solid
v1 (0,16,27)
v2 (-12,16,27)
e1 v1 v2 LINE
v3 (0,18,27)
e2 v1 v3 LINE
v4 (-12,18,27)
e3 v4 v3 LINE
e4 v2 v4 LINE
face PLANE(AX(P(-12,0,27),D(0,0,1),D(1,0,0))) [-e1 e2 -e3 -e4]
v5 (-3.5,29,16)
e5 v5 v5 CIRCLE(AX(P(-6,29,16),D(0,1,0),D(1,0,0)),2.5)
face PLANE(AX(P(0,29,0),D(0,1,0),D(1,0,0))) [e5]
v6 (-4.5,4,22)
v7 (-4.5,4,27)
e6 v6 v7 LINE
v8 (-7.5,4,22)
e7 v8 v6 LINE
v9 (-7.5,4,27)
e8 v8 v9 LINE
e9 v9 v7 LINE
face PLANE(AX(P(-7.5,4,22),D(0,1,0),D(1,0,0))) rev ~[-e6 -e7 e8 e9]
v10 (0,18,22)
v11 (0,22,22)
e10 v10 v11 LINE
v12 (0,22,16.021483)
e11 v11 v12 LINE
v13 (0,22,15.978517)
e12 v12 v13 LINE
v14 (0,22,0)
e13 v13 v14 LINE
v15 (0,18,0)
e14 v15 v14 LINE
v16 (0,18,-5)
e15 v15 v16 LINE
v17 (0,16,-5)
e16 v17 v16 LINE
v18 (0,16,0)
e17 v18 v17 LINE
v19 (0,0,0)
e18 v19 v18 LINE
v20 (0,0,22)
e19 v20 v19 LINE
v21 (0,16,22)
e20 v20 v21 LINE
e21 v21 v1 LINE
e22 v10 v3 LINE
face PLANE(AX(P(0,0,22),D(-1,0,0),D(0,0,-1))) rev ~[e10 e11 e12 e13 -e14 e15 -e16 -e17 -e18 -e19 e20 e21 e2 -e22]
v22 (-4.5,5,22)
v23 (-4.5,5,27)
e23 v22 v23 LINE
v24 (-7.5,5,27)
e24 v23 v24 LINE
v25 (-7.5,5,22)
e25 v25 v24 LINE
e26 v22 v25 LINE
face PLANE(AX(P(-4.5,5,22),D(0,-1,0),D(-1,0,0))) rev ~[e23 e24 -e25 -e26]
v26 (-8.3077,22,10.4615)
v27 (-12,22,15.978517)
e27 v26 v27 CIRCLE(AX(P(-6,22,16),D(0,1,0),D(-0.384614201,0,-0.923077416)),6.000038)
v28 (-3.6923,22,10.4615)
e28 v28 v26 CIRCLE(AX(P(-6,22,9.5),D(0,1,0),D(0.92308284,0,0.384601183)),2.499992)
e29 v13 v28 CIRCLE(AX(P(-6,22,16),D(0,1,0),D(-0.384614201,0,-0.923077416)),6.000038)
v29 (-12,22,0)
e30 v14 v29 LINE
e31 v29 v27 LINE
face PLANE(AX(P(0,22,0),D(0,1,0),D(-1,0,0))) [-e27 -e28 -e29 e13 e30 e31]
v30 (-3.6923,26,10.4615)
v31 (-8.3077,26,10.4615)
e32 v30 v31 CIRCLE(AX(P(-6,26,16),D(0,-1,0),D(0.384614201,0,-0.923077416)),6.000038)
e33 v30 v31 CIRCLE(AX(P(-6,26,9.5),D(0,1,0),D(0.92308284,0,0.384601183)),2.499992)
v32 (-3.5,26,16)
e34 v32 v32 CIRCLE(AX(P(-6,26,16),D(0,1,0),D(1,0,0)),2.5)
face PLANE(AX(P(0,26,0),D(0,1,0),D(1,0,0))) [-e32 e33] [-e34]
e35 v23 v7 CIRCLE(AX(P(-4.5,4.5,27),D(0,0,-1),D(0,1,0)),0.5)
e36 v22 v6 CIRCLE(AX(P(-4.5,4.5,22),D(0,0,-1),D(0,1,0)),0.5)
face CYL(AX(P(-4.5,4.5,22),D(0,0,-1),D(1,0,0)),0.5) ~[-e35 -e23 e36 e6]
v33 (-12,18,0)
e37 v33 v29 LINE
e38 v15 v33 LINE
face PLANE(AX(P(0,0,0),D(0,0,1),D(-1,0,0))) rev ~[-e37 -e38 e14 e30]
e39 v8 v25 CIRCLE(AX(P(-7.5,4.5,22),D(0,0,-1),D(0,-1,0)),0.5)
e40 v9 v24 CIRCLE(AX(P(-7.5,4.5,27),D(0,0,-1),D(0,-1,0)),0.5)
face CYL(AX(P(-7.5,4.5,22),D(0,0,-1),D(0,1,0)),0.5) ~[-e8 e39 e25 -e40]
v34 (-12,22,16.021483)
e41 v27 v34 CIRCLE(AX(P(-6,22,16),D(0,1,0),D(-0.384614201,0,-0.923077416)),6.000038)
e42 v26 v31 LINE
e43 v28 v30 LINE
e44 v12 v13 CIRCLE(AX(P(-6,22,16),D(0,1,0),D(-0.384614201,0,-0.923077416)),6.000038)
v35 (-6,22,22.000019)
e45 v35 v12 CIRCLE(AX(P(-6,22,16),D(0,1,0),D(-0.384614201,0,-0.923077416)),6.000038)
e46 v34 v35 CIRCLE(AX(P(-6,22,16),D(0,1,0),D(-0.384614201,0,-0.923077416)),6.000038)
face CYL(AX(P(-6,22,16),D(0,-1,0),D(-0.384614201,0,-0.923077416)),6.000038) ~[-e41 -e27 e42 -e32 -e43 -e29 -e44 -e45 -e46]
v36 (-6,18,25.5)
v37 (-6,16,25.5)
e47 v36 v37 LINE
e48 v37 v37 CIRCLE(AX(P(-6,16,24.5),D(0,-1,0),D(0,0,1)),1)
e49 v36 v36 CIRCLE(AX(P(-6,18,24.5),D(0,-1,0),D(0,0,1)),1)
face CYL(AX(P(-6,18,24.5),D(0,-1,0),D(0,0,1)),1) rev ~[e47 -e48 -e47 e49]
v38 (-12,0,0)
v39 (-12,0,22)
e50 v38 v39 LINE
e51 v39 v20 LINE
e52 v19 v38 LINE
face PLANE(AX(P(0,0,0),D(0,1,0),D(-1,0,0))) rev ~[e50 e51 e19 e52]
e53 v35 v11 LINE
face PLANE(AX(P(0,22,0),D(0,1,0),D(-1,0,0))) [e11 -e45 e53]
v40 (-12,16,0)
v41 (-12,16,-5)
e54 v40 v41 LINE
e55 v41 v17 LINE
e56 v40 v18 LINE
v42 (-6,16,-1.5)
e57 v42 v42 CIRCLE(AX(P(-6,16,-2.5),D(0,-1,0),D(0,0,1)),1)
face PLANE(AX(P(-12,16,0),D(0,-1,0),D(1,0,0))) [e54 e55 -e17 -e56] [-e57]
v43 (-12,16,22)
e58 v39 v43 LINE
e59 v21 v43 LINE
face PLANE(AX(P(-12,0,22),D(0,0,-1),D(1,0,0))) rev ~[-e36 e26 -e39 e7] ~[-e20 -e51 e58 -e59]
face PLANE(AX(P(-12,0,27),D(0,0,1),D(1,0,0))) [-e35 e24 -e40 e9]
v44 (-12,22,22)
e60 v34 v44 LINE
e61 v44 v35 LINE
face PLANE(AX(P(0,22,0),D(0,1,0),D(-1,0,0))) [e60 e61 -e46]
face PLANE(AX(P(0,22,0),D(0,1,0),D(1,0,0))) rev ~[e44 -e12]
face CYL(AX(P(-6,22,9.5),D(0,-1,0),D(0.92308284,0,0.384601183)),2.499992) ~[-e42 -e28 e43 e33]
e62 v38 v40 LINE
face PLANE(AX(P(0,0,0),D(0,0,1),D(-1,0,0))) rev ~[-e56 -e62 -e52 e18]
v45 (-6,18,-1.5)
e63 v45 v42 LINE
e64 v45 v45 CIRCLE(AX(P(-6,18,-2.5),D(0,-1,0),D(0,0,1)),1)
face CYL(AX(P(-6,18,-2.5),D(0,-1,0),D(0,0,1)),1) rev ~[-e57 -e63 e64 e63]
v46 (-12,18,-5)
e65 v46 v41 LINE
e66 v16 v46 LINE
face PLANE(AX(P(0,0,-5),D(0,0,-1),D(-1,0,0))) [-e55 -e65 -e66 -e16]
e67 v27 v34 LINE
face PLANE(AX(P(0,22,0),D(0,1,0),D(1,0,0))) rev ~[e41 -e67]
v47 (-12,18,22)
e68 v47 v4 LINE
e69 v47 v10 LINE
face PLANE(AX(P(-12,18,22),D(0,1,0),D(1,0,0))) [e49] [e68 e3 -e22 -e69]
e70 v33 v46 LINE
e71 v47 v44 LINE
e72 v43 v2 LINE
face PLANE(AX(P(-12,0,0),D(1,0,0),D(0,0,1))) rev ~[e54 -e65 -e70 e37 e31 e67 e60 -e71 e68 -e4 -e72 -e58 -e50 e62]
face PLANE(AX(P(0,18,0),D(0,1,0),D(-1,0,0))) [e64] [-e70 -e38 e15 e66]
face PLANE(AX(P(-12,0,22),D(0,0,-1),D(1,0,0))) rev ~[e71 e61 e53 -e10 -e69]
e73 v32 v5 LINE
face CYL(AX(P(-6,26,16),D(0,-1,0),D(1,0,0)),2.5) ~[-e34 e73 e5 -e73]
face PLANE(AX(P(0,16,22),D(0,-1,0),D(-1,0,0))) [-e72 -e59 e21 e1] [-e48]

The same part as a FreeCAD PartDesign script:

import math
import FreeCAD as App
import Part
import Sketcher


def add_polygon(sketch, points):
    """Adds a closed chain of lines whose ends are joined by coincident constraints."""
    first, n = sketch.GeometryCount, len(points)
    for a, b in zip(points, points[1:] + points[:1]):
        sketch.addGeometry(Part.LineSegment(App.Vector(*a, 0), App.Vector(*b, 0)), False)
    for i in range(n):
        sketch.addConstraint(Sketcher.Constraint("Coincident", first + i, 2, first + (i + 1) % n, 1))

doc = App.newDocument("Part")
body = doc.addObject("PartDesign::Body", "Body")

sketch1 = doc.addObject("Sketcher::SketchObject", "Sketch")
body.addObject(sketch1)
sketch1.AttachmentSupport = (doc.XZ_Plane, [""])
sketch1.MapMode = "FlatFace"
add_polygon(sketch1, [(0, 22), (0, 0), (-12, 0), (-12, 22)])
sketch1.addConstraint(Sketcher.Constraint("Vertical", 0))
sketch1.addConstraint(Sketcher.Constraint("Horizontal", 1))
sketch1.addConstraint(Sketcher.Constraint("Vertical", 2))
sketch1.addConstraint(Sketcher.Constraint("Horizontal", 3))
sketch1.addConstraint(Sketcher.Constraint("Coincident", 0, 2, -1, 1))
sketch1.addConstraint(Sketcher.Constraint("DistanceX", 1, 2, 1, 1, 12.0))
sketch1.addConstraint(Sketcher.Constraint("DistanceY", 0, 2, 0, 1, 22.0))
pad1 = doc.addObject("PartDesign::Pad", "Pad")
body.addObject(pad1)
pad1.Profile = sketch1
pad1.Length = 22
pad1.Reversed = True

sketch2 = doc.addObject("Sketcher::SketchObject", "Sketch001")
body.addObject(sketch2)
sketch2.AttachmentSupport = (doc.XY_Plane, [""])
sketch2.MapMode = "FlatFace"
sketch2.AttachmentOffset = App.Placement(App.Vector(0, 0, 22), App.Rotation())
add_polygon(sketch2, [(-12, 18), (-12, 16), (0, 16), (0, 18)])
sketch2.addConstraint(Sketcher.Constraint("Vertical", 0))
sketch2.addConstraint(Sketcher.Constraint("Horizontal", 1))
sketch2.addConstraint(Sketcher.Constraint("Vertical", 2))
sketch2.addConstraint(Sketcher.Constraint("Horizontal", 3))
sketch2.addConstraint(Sketcher.Constraint("PointOnObject", 1, 2, -2))
sketch2.addConstraint(Sketcher.Constraint("DistanceY", 0, 2, 0, 1, 2.0))
sketch2.addConstraint(Sketcher.Constraint("DistanceX", 1, 1, 1, 2, 12.0))
sketch2.addConstraint(Sketcher.Constraint("DistanceY", -1, 1, 0, 2, 16.0))
pad2 = doc.addObject("PartDesign::Pad", "Pad001")
body.addObject(pad2)
pad2.Profile = sketch2
pad2.Length = 5

sketch3 = doc.addObject("Sketcher::SketchObject", "Sketch002")
body.addObject(sketch3)
sketch3.AttachmentSupport = (doc.XY_Plane, [""])
sketch3.MapMode = "FlatFace"
add_polygon(sketch3, [(0, 18), (0, 16), (-12, 16), (-12, 18)])
sketch3.addConstraint(Sketcher.Constraint("Vertical", 0))
sketch3.addConstraint(Sketcher.Constraint("Horizontal", 1))
sketch3.addConstraint(Sketcher.Constraint("Vertical", 2))
sketch3.addConstraint(Sketcher.Constraint("Horizontal", 3))
sketch3.addConstraint(Sketcher.Constraint("PointOnObject", 0, 2, -2))
sketch3.addConstraint(Sketcher.Constraint("DistanceX", 1, 2, 1, 1, 12.0))
sketch3.addConstraint(Sketcher.Constraint("DistanceY", 0, 2, 0, 1, 2.0))
sketch3.addConstraint(Sketcher.Constraint("DistanceY", -1, 1, 0, 2, 16.0))
pad3 = doc.addObject("PartDesign::Pad", "Pad002")
body.addObject(pad3)
pad3.Profile = sketch3
pad3.Length = 5
pad3.Reversed = True

sketch4 = doc.addObject("Sketcher::SketchObject", "Sketch003")
body.addObject(sketch4)
sketch4.AttachmentSupport = (doc.XZ_Plane, [""])
sketch4.MapMode = "FlatFace"
sketch4.AttachmentOffset = App.Placement(App.Vector(0, 0, -18), App.Rotation())
sketch4.addGeometry(Part.Circle(App.Vector(-6, -2.5, 0), App.Vector(0, 0, 1), 1), False)
sketch4.addConstraint(Sketcher.Constraint("Diameter", 0, 2.0))
sketch4.addConstraint(Sketcher.Constraint("DistanceX", 0, 3, -1, 1, 6.0))
sketch4.addConstraint(Sketcher.Constraint("DistanceY", 0, 3, -1, 1, 2.5))
doc.recompute()
hole = doc.addObject("PartDesign::Hole", "Hole")
body.addObject(hole)
hole.Profile = sketch4
hole.ThreadType = "None"
hole.Diameter = 2
hole.DepthType = "ThroughAll"
hole.Reversed = True

sketch5 = doc.addObject("Sketcher::SketchObject", "Sketch004")
body.addObject(sketch5)
sketch5.AttachmentSupport = (doc.XZ_Plane, [""])
sketch5.MapMode = "FlatFace"
sketch5.AttachmentOffset = App.Placement(App.Vector(0, 0, -18), App.Rotation())
sketch5.addGeometry(Part.Circle(App.Vector(-6, 24.5, 0), App.Vector(0, 0, 1), 1), False)
sketch5.addConstraint(Sketcher.Constraint("Diameter", 0, 2.0))
sketch5.addConstraint(Sketcher.Constraint("DistanceX", 0, 3, -1, 1, 6.0))
sketch5.addConstraint(Sketcher.Constraint("DistanceY", -1, 1, 0, 3, 24.5))
doc.recompute()
hole2 = doc.addObject("PartDesign::Hole", "Hole001")
body.addObject(hole2)
hole2.Profile = sketch5
hole2.ThreadType = "None"
hole2.Diameter = 2
hole2.DepthType = "ThroughAll"
hole2.Reversed = True

sketch6 = doc.addObject("Sketcher::SketchObject", "Sketch005")
body.addObject(sketch6)
sketch6.AttachmentSupport = (doc.XZ_Plane, [""])
sketch6.MapMode = "FlatFace"
sketch6.AttachmentOffset = App.Placement(App.Vector(0, 0, -22), App.Rotation())
sketch6.addGeometry(Part.ArcOfCircle(Part.Circle(App.Vector(-6, 9.5, 0), App.Vector(0, 0, 1), 2.5), math.radians(157), math.radians(383)), False)
sketch6.addGeometry(Part.ArcOfCircle(Part.Circle(App.Vector(-6, 16, 0), App.Vector(0, 0, 1), 6), math.radians(-67), math.radians(247)), False)
sketch6.addConstraint(Sketcher.Constraint("Coincident", 0, 1, 1, 2))
sketch6.addConstraint(Sketcher.Constraint("Coincident", 1, 1, 0, 2))
sketch6.addConstraint(Sketcher.Constraint("Horizontal", 0, 1, 1, 1))
sketch6.addConstraint(Sketcher.Constraint("Radius", 1, 6.0))
sketch6.addConstraint(Sketcher.Constraint("Radius", 0, 2.5))
sketch6.addConstraint(Sketcher.Constraint("DistanceX", 0, 3, -1, 1, 6.0))
sketch6.addConstraint(Sketcher.Constraint("DistanceY", -1, 1, 0, 3, 9.5))
sketch6.addConstraint(Sketcher.Constraint("DistanceY", -1, 1, 1, 3, 16.0))
pad4 = doc.addObject("PartDesign::Pad", "Pad003")
body.addObject(pad4)
pad4.Profile = sketch6
pad4.Length = 4
pad4.Reversed = True

sketch7 = doc.addObject("Sketcher::SketchObject", "Sketch006")
body.addObject(sketch7)
sketch7.AttachmentSupport = (doc.XZ_Plane, [""])
sketch7.MapMode = "FlatFace"
sketch7.AttachmentOffset = App.Placement(App.Vector(0, 0, -26), App.Rotation())
sketch7.addGeometry(Part.Circle(App.Vector(-6, 16, 0), App.Vector(0, 0, 1), 2.5), False)
sketch7.addConstraint(Sketcher.Constraint("Diameter", 0, 5.0))
sketch7.addConstraint(Sketcher.Constraint("DistanceX", 0, 3, -1, 1, 6.0))
sketch7.addConstraint(Sketcher.Constraint("DistanceY", -1, 1, 0, 3, 16.0))
pad5 = doc.addObject("PartDesign::Pad", "Pad004")
body.addObject(pad5)
pad5.Profile = sketch7
pad5.Length = 3
pad5.Reversed = True

sketch8 = doc.addObject("Sketcher::SketchObject", "Sketch007")
body.addObject(sketch8)
sketch8.AttachmentSupport = (doc.XY_Plane, [""])
sketch8.MapMode = "FlatFace"
sketch8.AttachmentOffset = App.Placement(App.Vector(0, 0, 22), App.Rotation())
sketch8.addGeometry(Part.ArcOfCircle(Part.Circle(App.Vector(-7.5, 4.5, 0), App.Vector(0, 0, 1), 0.5), math.radians(90), math.radians(270)), False)
sketch8.addGeometry(Part.LineSegment(App.Vector(-7.5, 4, 0), App.Vector(-4.5, 4, 0)), False)
sketch8.addGeometry(Part.ArcOfCircle(Part.Circle(App.Vector(-4.5, 4.5, 0), App.Vector(0, 0, 1), 0.5), math.radians(-90), math.radians(90)), False)
sketch8.addGeometry(Part.LineSegment(App.Vector(-4.5, 5, 0), App.Vector(-7.5, 5, 0)), False)
sketch8.addConstraint(Sketcher.Constraint("Tangent", 0, 2, 1, 1))
sketch8.addConstraint(Sketcher.Constraint("Tangent", 1, 2, 2, 1))
sketch8.addConstraint(Sketcher.Constraint("Tangent", 2, 2, 3, 1))
sketch8.addConstraint(Sketcher.Constraint("Tangent", 3, 2, 0, 1))
sketch8.addConstraint(Sketcher.Constraint("Horizontal", 1))
sketch8.addConstraint(Sketcher.Constraint("Horizontal", 3))
sketch8.addConstraint(Sketcher.Constraint("Radius", 0, 0.5))
sketch8.addConstraint(Sketcher.Constraint("DistanceY", -1, 1, 0, 2, 4.0))
sketch8.addConstraint(Sketcher.Constraint("DistanceX", 1, 1, 1, 2, 3.0))
sketch8.addConstraint(Sketcher.Constraint("DistanceX", 0, 3, -1, 1, 7.5))
pad6 = doc.addObject("PartDesign::Pad", "Pad005")
body.addObject(pad6)
pad6.Profile = sketch8
pad6.Length = 5

doc.recompute()
